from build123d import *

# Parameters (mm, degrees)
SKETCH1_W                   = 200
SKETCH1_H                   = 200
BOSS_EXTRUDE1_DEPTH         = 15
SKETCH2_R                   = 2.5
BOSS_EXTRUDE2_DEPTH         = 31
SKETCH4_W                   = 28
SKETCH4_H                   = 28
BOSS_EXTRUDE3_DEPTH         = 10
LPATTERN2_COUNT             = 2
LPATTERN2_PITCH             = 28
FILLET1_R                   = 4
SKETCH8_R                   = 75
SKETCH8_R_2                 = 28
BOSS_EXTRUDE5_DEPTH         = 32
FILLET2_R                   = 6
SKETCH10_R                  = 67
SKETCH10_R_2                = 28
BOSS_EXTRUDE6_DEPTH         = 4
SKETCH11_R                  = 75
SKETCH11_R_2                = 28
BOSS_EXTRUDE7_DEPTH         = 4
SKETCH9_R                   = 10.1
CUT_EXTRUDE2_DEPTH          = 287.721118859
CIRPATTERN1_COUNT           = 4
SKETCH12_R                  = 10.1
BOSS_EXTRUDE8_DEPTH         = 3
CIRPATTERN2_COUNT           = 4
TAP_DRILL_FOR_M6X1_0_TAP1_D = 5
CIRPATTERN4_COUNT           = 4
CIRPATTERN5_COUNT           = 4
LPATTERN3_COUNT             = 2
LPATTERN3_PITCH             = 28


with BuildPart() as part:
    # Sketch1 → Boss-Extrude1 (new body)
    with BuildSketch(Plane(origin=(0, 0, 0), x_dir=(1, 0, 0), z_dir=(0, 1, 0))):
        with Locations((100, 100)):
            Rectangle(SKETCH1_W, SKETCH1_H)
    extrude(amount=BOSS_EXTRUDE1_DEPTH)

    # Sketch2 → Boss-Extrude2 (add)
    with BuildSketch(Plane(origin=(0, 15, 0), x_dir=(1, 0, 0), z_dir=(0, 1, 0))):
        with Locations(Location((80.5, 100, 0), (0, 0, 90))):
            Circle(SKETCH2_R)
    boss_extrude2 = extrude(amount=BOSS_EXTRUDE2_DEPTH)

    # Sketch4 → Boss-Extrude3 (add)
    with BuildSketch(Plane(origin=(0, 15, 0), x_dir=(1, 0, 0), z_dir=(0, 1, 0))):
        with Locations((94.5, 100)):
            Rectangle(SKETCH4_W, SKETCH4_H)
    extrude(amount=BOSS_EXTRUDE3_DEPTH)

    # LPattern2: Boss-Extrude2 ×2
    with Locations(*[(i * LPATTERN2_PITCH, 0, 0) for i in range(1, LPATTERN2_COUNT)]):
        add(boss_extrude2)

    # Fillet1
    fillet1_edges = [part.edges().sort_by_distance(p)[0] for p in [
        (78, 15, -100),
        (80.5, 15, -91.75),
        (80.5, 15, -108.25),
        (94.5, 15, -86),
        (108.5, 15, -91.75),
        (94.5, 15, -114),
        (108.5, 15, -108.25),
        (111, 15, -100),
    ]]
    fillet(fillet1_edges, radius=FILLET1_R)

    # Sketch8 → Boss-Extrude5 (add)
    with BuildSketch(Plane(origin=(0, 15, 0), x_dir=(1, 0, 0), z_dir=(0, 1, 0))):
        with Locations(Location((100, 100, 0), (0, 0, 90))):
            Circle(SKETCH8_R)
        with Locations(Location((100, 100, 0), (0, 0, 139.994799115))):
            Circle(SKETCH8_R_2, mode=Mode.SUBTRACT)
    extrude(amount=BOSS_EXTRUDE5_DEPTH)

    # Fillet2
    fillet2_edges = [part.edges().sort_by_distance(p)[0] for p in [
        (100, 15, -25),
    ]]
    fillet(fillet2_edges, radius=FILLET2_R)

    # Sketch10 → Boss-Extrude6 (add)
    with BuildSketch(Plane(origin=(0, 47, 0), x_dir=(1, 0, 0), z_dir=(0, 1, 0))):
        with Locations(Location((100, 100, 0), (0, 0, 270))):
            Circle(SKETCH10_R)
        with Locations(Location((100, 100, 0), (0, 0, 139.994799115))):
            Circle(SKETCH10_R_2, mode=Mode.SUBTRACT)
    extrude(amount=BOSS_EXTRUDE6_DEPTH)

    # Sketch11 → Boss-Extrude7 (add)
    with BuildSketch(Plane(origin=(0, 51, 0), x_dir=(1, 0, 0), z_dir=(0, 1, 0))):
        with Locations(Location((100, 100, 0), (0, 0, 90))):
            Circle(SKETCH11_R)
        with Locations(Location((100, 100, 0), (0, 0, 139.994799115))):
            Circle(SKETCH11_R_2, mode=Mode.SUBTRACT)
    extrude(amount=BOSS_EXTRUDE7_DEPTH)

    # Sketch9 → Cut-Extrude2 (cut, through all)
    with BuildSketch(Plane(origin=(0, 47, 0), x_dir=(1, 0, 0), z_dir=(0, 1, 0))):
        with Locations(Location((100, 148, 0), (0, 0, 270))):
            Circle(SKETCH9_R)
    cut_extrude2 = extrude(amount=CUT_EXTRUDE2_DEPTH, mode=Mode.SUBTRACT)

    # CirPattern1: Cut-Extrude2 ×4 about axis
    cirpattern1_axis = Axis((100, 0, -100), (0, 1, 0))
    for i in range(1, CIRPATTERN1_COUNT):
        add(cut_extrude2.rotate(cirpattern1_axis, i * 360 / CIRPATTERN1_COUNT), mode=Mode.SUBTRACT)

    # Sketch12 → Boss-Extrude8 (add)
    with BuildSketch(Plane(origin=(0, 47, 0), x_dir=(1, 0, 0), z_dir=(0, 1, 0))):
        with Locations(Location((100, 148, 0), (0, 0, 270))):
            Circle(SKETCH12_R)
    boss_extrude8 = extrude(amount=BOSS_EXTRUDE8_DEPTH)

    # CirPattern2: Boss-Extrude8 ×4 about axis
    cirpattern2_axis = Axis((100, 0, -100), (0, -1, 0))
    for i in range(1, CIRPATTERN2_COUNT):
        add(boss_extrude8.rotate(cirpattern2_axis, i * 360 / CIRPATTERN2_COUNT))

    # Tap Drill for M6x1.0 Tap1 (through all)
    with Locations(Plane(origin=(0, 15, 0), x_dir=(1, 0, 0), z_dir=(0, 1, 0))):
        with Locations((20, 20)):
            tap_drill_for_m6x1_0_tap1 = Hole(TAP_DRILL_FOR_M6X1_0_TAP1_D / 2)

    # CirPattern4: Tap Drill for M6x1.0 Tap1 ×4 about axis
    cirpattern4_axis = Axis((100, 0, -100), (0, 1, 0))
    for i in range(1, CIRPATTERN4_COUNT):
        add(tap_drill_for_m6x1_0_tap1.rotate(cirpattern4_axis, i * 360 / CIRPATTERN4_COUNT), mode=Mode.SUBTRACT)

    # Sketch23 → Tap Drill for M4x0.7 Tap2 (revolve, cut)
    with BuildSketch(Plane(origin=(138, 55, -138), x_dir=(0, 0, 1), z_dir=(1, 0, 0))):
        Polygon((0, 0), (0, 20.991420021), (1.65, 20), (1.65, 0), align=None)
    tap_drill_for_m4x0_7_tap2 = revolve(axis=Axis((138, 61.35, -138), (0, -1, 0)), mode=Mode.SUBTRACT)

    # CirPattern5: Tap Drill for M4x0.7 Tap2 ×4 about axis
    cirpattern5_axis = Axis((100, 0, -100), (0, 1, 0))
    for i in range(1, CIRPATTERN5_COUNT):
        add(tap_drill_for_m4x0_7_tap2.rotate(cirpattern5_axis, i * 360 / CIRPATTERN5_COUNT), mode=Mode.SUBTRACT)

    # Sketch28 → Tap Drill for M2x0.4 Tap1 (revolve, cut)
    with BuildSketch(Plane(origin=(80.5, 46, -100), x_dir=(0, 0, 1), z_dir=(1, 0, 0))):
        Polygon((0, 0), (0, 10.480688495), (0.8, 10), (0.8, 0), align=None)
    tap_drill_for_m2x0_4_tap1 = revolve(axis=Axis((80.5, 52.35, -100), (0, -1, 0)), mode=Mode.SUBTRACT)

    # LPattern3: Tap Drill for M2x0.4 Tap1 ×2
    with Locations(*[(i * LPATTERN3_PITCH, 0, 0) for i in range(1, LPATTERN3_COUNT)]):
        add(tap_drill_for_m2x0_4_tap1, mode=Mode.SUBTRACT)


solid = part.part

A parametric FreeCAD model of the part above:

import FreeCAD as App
import Part
import Sketcher
Q = App.Units.Quantity


def edges_at(feature, points):
    """Names of the edges that pass closest to the given points."""
    edges = feature.Shape.Edges
    near = lambda p: min(range(len(edges)), key=lambda i: edges[i].distToShape(Part.Vertex(*p))[0])
    return sorted({f"Edge{near(p) + 1}" for p in points})


def add_polygon(sketch, points):
    """Adds a closed chain of lines whose ends are joined by coincident constraints."""
    first, n = sketch.GeometryCount, len(points)
    for a, b in zip(points, points[1:] + points[:1]):
        sketch.addGeometry(Part.LineSegment(App.Vector(*a, 0), App.Vector(*b, 0)), False)
    for i in range(n):
        sketch.addConstraint(Sketcher.Constraint("Coincident", first + i, 2, first + (i + 1) % n, 1))

doc = App.newDocument("Part")
params = doc.addObject("Spreadsheet::Sheet", "Params")
for row, (alias, value) in enumerate([
    ("sketch1_width", "200 mm"),
    ("pad1_length", "15 mm"),
    ("sketch2_diameter", "5 mm"),
    ("pad2_length", "31 mm"),
    ("sketch3_width", "28 mm"),
    ("pad3_length", "10 mm"),
    ("linearpattern_pitch", "28 mm"),
    ("fillet_radius", "4 mm"),
    ("sketch4_diameter", "150 mm"),
    ("sketch4_diameter2", "56 mm"),
    ("pad4_length", "32 mm"),
    ("fillet2_radius", "6 mm"),
    ("sketch5_diameter", "134 mm"),
    ("sketch5_diameter2", "56 mm"),
    ("pad5_length", "4 mm"),
    ("sketch6_diameter", "150 mm"),
    ("sketch6_diameter2", "56 mm"),
    ("pad6_length", "4 mm"),
    ("sketch7_diameter", "20.2 mm"),
    ("sketch8_diameter", "20.2 mm"),
    ("pad7_length", "3 mm"),
    ("sketch9_diameter", "5 mm"),
    ("hole_diameter", "5 mm"),
    ("sketch10_width", "20 mm"),
    ("sketch10_height", "1.65 mm"),
    ("groove_angle", "360 deg"),
    ("sketch11_width", "10 mm"),
    ("sketch11_height", "0.8 mm"),
    ("groove2_angle", "360 deg"),
    ("linearpattern2_pitch", "28 mm"),
], start=1):
    params.set(f"A{row}", alias)
    params.set(f"B{row}", "=" + value)
    params.setAlias(f"B{row}", alias)

body = doc.addObject("PartDesign::Body", "Body")

sketch1 = doc.addObject("Sketcher::SketchObject", "Sketch")
body.addObject(sketch1)
sketch1.AttachmentSupport = (doc.XZ_Plane, [""])
sketch1.MapMode = "FlatFace"
add_polygon(sketch1, [(0, -200), (0, 0), (200, 0), (200, -200)])
sketch1.addConstraint([
    Sketcher.Constraint("Vertical", 0),
    Sketcher.Constraint("Horizontal", 1),
    Sketcher.Constraint("Vertical", 2),
    Sketcher.Constraint("Horizontal", 3),
    Sketcher.Constraint("Coincident", 0, 2, -1, 1),
    Sketcher.Constraint("Equal", 3, 0),
    Sketcher.Constraint("DistanceX", 1, 1, 1, 2, Q("200 mm")),
])
sketch1.setExpression("Constraints[10]", "Params.sketch1_width")
pad1 = doc.addObject("PartDesign::Pad", "Pad")
body.addObject(pad1)
pad1.Profile = sketch1
pad1.setExpression("Length", "Params.pad1_length")
pad1.Reversed = True

sketch2 = doc.addObject("Sketcher::SketchObject", "Sketch001")
body.addObject(sketch2)
sketch2.AttachmentSupport = (doc.XZ_Plane, [""])
sketch2.MapMode = "FlatFace"
sketch2.AttachmentOffset = App.Placement(App.Vector(0, 0, -15), App.Rotation())
sketch2.addGeometry(Part.Circle(App.Vector(80.5, -100, 0), App.Vector(0, 0, 1), 2.5), False)
sketch2.addConstraint([
    Sketcher.Constraint("Diameter", 0, Q("5 mm")),
    Sketcher.Constraint("DistanceY", 0, 3, -1, 1, Q("100 mm")),
    Sketcher.Constraint("DistanceX", -1, 1, 0, 3, Q("80.5 mm")),
])
sketch2.setExpression("Constraints[0]", "Params.sketch2_diameter")
pad2 = doc.addObject("PartDesign::Pad", "Pad001")
body.addObject(pad2)
pad2.Profile = sketch2
pad2.setExpression("Length", "Params.pad2_length")
pad2.Reversed = True

sketch3 = doc.addObject("Sketcher::SketchObject", "Sketch002")
body.addObject(sketch3)
sketch3.AttachmentSupport = (doc.XZ_Plane, [""])
sketch3.MapMode = "FlatFace"
sketch3.AttachmentOffset = App.Placement(App.Vector(0, 0, -15), App.Rotation())
add_polygon(sketch3, [(80, -114), (80, -86), (108, -86), (108, -114)])
sketch3.addConstraint([
    Sketcher.Constraint("Vertical", 0),
    Sketcher.Constraint("Horizontal", 1),
    Sketcher.Constraint("Vertical", 2),
    Sketcher.Constraint("Horizontal", 3),
    Sketcher.Constraint("Equal", 3, 0),
    Sketcher.Constraint("DistanceX", 1, 1, 1, 2, Q("28 mm")),
    Sketcher.Constraint("DistanceY", 0, 2, -1, 1, Q("86 mm")),
    Sketcher.Constraint("DistanceX", -1, 1, 0, 2, Q("80.5 mm")),
])
sketch3.setExpression("Constraints[9]", "Params.sketch3_width")
pad3 = doc.addObject("PartDesign::Pad", "Pad002")
body.addObject(pad3)
pad3.Profile = sketch3
pad3.setExpression("Length", "Params.pad3_length")
pad3.Reversed = True
doc.recompute()

linearpattern = doc.addObject("PartDesign::LinearPattern", "LinearPattern")
body.addObject(linearpattern)
linearpattern.Originals = [pad2]
linearpattern.Direction = (doc.X_Axis, [""])
linearpattern.Mode = "offset"
linearpattern.setExpression("Offset", "Params.linearpattern_pitch")
linearpattern.Occurrences = 2
body.Tip = linearpattern
doc.recompute()

fillet = doc.addObject("PartDesign::Fillet", "Fillet")
body.addObject(fillet)
fillet.Base = (linearpattern, edges_at(linearpattern, [
    (78, 15, -100),
    (80.5, 15, -91.75),
    (80.5, 15, -108.25),
    (94.5, 15, -86),
    (108.5, 15, -91.75),
    (94.5, 15, -114),
    (108.5, 15, -108.25),
    (111, 15, -100),
]))
fillet.setExpression("Radius", "Params.fillet_radius")

sketch4 = doc.addObject("Sketcher::SketchObject", "Sketch003")
body.addObject(sketch4)
sketch4.AttachmentSupport = (doc.XZ_Plane, [""])
sketch4.MapMode = "FlatFace"
sketch4.AttachmentOffset = App.Placement(App.Vector(0, 0, -15), App.Rotation())
sketch4.addGeometry([
    Part.Circle(App.Vector(100, -100, 0), App.Vector(0, 0, 1), 75),
    Part.Circle(App.Vector(100, -100, 0), App.Vector(0, 0, 1), 28),
], False)
sketch4.addConstraint([
    Sketcher.Constraint("Coincident", 1, 3, 0, 3),
    Sketcher.Constraint("Diameter", 0, Q("150 mm")),
    Sketcher.Constraint("Diameter", 1, Q("56 mm")),
    Sketcher.Constraint("DistanceX", -1, 1, 0, 3, Q("100 mm")),
    Sketcher.Constraint("DistanceY", 0, 3, -1, 1, Q("100 mm")),
])
sketch4.setExpression("Constraints[1]", "Params.sketch4_diameter")
sketch4.setExpression("Constraints[2]", "Params.sketch4_diameter2")
pad4 = doc.addObject("PartDesign::Pad", "Pad003")
body.addObject(pad4)
pad4.Profile = sketch4
pad4.setExpression("Length", "Params.pad4_length")
pad4.Reversed = True
doc.recompute()

fillet2 = doc.addObject("PartDesign::Fillet", "Fillet001")
body.addObject(fillet2)
fillet2.Base = (pad4, edges_at(pad4, [(100, 15, -25)]))
fillet2.setExpression("Radius", "Params.fillet2_radius")

sketch5 = doc.addObject("Sketcher::SketchObject", "Sketch004")
body.addObject(sketch5)
sketch5.AttachmentSupport = (doc.XZ_Plane, [""])
sketch5.MapMode = "FlatFace"
sketch5.AttachmentOffset = App.Placement(App.Vector(0, 0, -47), App.Rotation())
sketch5.addGeometry([
    Part.Circle(App.Vector(100, -100, 0), App.Vector(0, 0, 1), 67),
    Part.Circle(App.Vector(100, -100, 0), App.Vector(0, 0, 1), 28),
], False)
sketch5.addConstraint([
    Sketcher.Constraint("Coincident", 1, 3, 0, 3),
    Sketcher.Constraint("Diameter", 0, Q("134 mm")),
    Sketcher.Constraint("Diameter", 1, Q("56 mm")),
    Sketcher.Constraint("DistanceX", -1, 1, 0, 3, Q("100 mm")),
    Sketcher.Constraint("DistanceY", 0, 3, -1, 1, Q("100 mm")),
])
sketch5.setExpression("Constraints[1]", "Params.sketch5_diameter")
sketch5.setExpression("Constraints[2]", "Params.sketch5_diameter2")
pad5 = doc.addObject("PartDesign::Pad", "Pad004")
body.addObject(pad5)
pad5.Profile = sketch5
pad5.setExpression("Length", "Params.pad5_length")
pad5.Reversed = True

sketch6 = doc.addObject("Sketcher::SketchObject", "Sketch005")
body.addObject(sketch6)
sketch6.AttachmentSupport = (doc.XZ_Plane, [""])
sketch6.MapMode = "FlatFace"
sketch6.AttachmentOffset = App.Placement(App.Vector(0, 0, -51), App.Rotation())
sketch6.addGeometry([
    Part.Circle(App.Vector(100, -100, 0), App.Vector(0, 0, 1), 75),
    Part.Circle(App.Vector(100, -100, 0), App.Vector(0, 0, 1), 28),
], False)
sketch6.addConstraint([
    Sketcher.Constraint("Coincident", 1, 3, 0, 3),
    Sketcher.Constraint("Diameter", 0, Q("150 mm")),
    Sketcher.Constraint("Diameter", 1, Q("56 mm")),
    Sketcher.Constraint("DistanceX", -1, 1, 0, 3, Q("100 mm")),
    Sketcher.Constraint("DistanceY", 0, 3, -1, 1, Q("100 mm")),
])
sketch6.setExpression("Constraints[1]", "Params.sketch6_diameter")
sketch6.setExpression("Constraints[2]", "Params.sketch6_diameter2")
pad6 = doc.addObject("PartDesign::Pad", "Pad005")
body.addObject(pad6)
pad6.Profile = sketch6
pad6.setExpression("Length", "Params.pad6_length")
pad6.Reversed = True

sketch7 = doc.addObject("Sketcher::SketchObject", "Sketch006")
body.addObject(sketch7)
sketch7.AttachmentSupport = (doc.XZ_Plane, [""])
sketch7.MapMode = "FlatFace"
sketch7.AttachmentOffset = App.Placement(App.Vector(0, 0, -47), App.Rotation())
sketch7.addGeometry(Part.Circle(App.Vector(100, -148, 0), App.Vector(0, 0, 1), 10), False)
sketch7.addConstraint([
    Sketcher.Constraint("Diameter", 0, Q("20.2 mm")),
    Sketcher.Constraint("DistanceX", -1, 1, 0, 3, Q("100 mm")),
    Sketcher.Constraint("DistanceY", 0, 3, -1, 1, Q("148 mm")),
])
sketch7.setExpression("Constraints[0]", "Params.sketch7_diameter")
pocket1 = doc.addObject("PartDesign::Pocket", "Pocket")
body.addObject(pocket1)
pocket1.Profile = sketch7
pocket1.Type = "ThroughAll"
doc.recompute()

datumline = doc.addObject("PartDesign::Line", "DatumLine")
body.addObject(datumline)
datumline.Placement = App.Placement(App.Vector(100, 0, -100), App.Rotation(App.Vector(0, 0, 1), App.Vector(0, 1, 0)))
polarpattern = doc.addObject("PartDesign::PolarPattern", "PolarPattern")
body.addObject(polarpattern)
polarpattern.Originals = [pocket1]
polarpattern.Axis = (datumline, [""])
polarpattern.Angle = 360
polarpattern.Occurrences = 4
body.Tip = polarpattern

sketch8 = doc.addObject("Sketcher::SketchObject", "Sketch007")
body.addObject(sketch8)
sketch8.AttachmentSupport = (doc.XZ_Plane, [""])
sketch8.MapMode = "FlatFace"
sketch8.AttachmentOffset = App.Placement(App.Vector(0, 0, -47), App.Rotation())
sketch8.addGeometry(Part.Circle(App.Vector(100, -148, 0), App.Vector(0, 0, 1), 10), False)
sketch8.addConstraint([
    Sketcher.Constraint("Diameter", 0, Q("20.2 mm")),
    Sketcher.Constraint("DistanceX", -1, 1, 0, 3, Q("100 mm")),
    Sketcher.Constraint("DistanceY", 0, 3, -1, 1, Q("148 mm")),
])
sketch8.setExpression("Constraints[0]", "Params.sketch8_diameter")
pad7 = doc.addObject("PartDesign::Pad", "Pad006")
body.addObject(pad7)
pad7.Profile = sketch8
pad7.setExpression("Length", "Params.pad7_length")
pad7.Reversed = True
doc.recompute()

datumline2 = doc.addObject("PartDesign::Line", "DatumLine001")
body.addObject(datumline2)
datumline2.Placement = App.Placement(App.Vector(100, 0, -100), App.Rotation(App.Vector(0, 0, 1), App.Vector(0, -1, 0)))
polarpattern2 = doc.addObject("PartDesign::PolarPattern", "PolarPattern001")
body.addObject(polarpattern2)
polarpattern2.Originals = [pad7]
polarpattern2.Axis = (datumline2, [""])
polarpattern2.Angle = 360
polarpattern2.Occurrences = 4
body.Tip = polarpattern2

sketch9 = doc.addObject("Sketcher::SketchObject", "Sketch008")
body.addObject(sketch9)
sketch9.AttachmentSupport = (doc.XZ_Plane, [""])
sketch9.MapMode = "FlatFace"
sketch9.AttachmentOffset = App.Placement(App.Vector(0, 0, -15), App.Rotation())
sketch9.addGeometry(Part.Circle(App.Vector(20, -20, 0), App.Vector(0, 0, 1), 2.5), False)
sketch9.addConstraint([
    Sketcher.Constraint("Diameter", 0, Q("5 mm")),
    Sketcher.Constraint("DistanceX", -1, 1, 0, 3, Q("20 mm")),
    Sketcher.Constraint("DistanceY", 0, 3, -1, 1, Q("20 mm")),
])
sketch9.setExpression("Constraints[0]", "Params.sketch9_diameter")
doc.recompute()
hole = doc.addObject("PartDesign::Hole", "Hole")
body.addObject(hole)
hole.Profile = sketch9
hole.ThreadType = "None"
hole.setExpression("Diameter", "Params.hole_diameter")
hole.DepthType = "ThroughAll"
hole.Reversed = True
doc.recompute()

datumline3 = doc.addObject("PartDesign::Line", "DatumLine002")
body.addObject(datumline3)
datumline3.Placement = App.Placement(App.Vector(100, 0, -100), App.Rotation(App.Vector(0, 0, 1), App.Vector(0, 1, 0)))
polarpattern3 = doc.addObject("PartDesign::PolarPattern", "PolarPattern002")
body.addObject(polarpattern3)
polarpattern3.Originals = [hole]
polarpattern3.Axis = (datumline3, [""])
polarpattern3.Angle = 360
polarpattern3.Occurrences = 4
body.Tip = polarpattern3

sketch10 = doc.addObject("Sketcher::SketchObject", "Sketch009")
body.addObject(sketch10)
sketch10.AttachmentSupport = (doc.YZ_Plane, [""])
sketch10.MapMode = "FlatFace"
sketch10.AttachmentOffset = App.Placement(App.Vector(0, 0, 138), App.Rotation())
add_polygon(sketch10, [(34, -138), (55, -138), (55, -136.3), (35, -136.3)])
sketch10.addGeometry(Part.LineSegment(App.Vector(55, -138, 0), App.Vector(34, -138, 0)), True)
sketch10.addConstraint([
    Sketcher.Constraint("Horizontal", 0),
    Sketcher.Constraint("Vertical", 1),
    Sketcher.Constraint("Horizontal", 2),
    Sketcher.Constraint("Horizontal", 4),
    Sketcher.Constraint("Coincident", 4, 1, 0, 2),
    Sketcher.Constraint("Equal", 0, 4),
    Sketcher.Constraint("DistanceX", 2, 2, 2, 1, Q("20 mm")),
    Sketcher.Constraint("Angle", 3, Q("-121 deg")),
    Sketcher.Constraint("DistanceX", -1, 1, 0, 2, Q("55 mm")),
    Sketcher.Constraint("DistanceY", 0, 2, -1, 1, Q("138 mm")),
    Sketcher.Constraint("DistanceY", 1, 1, 1, 2, Q("1.65 mm")),
])
sketch10.setExpression("Constraints[10]", "Params.sketch10_width")
sketch10.setExpression("Constraints[14]", "Params.sketch10_height")
groove = doc.addObject("PartDesign::Groove", "Groove")
body.addObject(groove)
groove.Profile = sketch10
groove.ReferenceAxis = (sketch10, ["Axis0"])
groove.setExpression("Angle", "Params.groove_angle")
doc.recompute()

datumline4 = doc.addObject("PartDesign::Line", "DatumLine003")
body.addObject(datumline4)
datumline4.Placement = App.Placement(App.Vector(100, 0, -100), App.Rotation(App.Vector(0, 0, 1), App.Vector(0, 1, 0)))
polarpattern4 = doc.addObject("PartDesign::PolarPattern", "PolarPattern003")
body.addObject(polarpattern4)
polarpattern4.Originals = [groove]
polarpattern4.Axis = (datumline4, [""])
polarpattern4.Angle = 360
polarpattern4.Occurrences = 4
body.Tip = polarpattern4

sketch11 = doc.addObject("Sketcher::SketchObject", "Sketch010")
body.addObject(sketch11)
sketch11.AttachmentSupport = (doc.YZ_Plane, [""])
sketch11.MapMode = "FlatFace"
sketch11.AttachmentOffset = App.Placement(App.Vector(0, 0, 80.5), App.Rotation())
add_polygon(sketch11, [(35.5, -100), (46, -100), (46, -99.2), (36, -99.2)])
sketch11.addGeometry(Part.LineSegment(App.Vector(46, -100, 0), App.Vector(35.5, -100, 0)), True)
sketch11.addConstraint([
    Sketcher.Constraint("Horizontal", 0),
    Sketcher.Constraint("Vertical", 1),
    Sketcher.Constraint("Horizontal", 2),
    Sketcher.Constraint("Horizontal", 4),
    Sketcher.Constraint("Coincident", 4, 1, 0, 2),
    Sketcher.Constraint("Equal", 0, 4),
    Sketcher.Constraint("DistanceX", 2, 2, 2, 1, Q("10 mm")),
    Sketcher.Constraint("Angle", 3, Q("-121 deg")),
    Sketcher.Constraint("DistanceY", 1, 1, 1, 2, Q("0.8 mm")),
    Sketcher.Constraint("DistanceX", -1, 1, 0, 2, Q("46 mm")),
    Sketcher.Constraint("DistanceY", 0, 2, -1, 1, Q("100 mm")),
])
sketch11.setExpression("Constraints[10]", "Params.sketch11_width")
sketch11.setExpression("Constraints[12]", "Params.sketch11_height")
groove2 = doc.addObject("PartDesign::Groove", "Groove001")
body.addObject(groove2)
groove2.Profile = sketch11
groove2.ReferenceAxis = (sketch11, ["Axis0"])
groove2.setExpression("Angle", "Params.groove2_angle")
doc.recompute()

linearpattern2 = doc.addObject("PartDesign::LinearPattern", "LinearPattern001")
body.addObject(linearpattern2)
linearpattern2.Originals = [groove2]
linearpattern2.Direction = (doc.X_Axis, [""])
linearpattern2.Mode = "offset"
linearpattern2.setExpression("Offset", "Params.linearpattern2_pitch")
linearpattern2.Occurrences = 2
body.Tip = linearpattern2

doc.recompute()
